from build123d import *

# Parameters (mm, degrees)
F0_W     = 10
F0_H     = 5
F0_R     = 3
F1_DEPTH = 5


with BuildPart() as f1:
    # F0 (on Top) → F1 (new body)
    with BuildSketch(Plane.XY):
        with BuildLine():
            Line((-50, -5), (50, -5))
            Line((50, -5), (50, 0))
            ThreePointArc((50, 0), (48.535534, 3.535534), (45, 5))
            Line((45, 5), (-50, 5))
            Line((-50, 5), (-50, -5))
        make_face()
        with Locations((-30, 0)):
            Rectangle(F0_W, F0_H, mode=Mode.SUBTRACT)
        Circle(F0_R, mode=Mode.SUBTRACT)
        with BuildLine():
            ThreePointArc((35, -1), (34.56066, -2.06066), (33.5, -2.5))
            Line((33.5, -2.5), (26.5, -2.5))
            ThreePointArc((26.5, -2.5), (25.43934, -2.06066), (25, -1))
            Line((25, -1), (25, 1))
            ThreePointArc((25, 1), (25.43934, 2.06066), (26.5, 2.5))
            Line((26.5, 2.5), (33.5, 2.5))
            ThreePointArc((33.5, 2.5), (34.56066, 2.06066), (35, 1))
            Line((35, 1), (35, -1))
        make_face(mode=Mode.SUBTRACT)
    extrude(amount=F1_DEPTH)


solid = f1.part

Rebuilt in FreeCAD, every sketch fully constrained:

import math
import FreeCAD as App
import Part
import Sketcher
Q = App.Units.Quantity

doc = App.newDocument("Part")
params = doc.addObject("Spreadsheet::Sheet", "Params")
for row, (alias, value) in enumerate([
    ("sketch1_diameter", "6 mm"),
    ("sketch1_radius", "5 mm"),
    ("sketch1_radius2", "1.500001 mm"),
    ("sketch1_width", "100 mm"),
    ("sketch1_width2", "7 mm"),
    ("pad1_length", "5 mm"),
], start=1):
    params.set(f"A{row}", alias)
    params.set(f"B{row}", "=" + value)
    params.setAlias(f"B{row}", alias)

body = doc.addObject("PartDesign::Body", "Body")

sketch1 = body.newObject("Sketcher::SketchObject", "Sketch")
sketch1.AttachmentSupport = (doc.getObject("XY_Plane"), [""])
sketch1.MapMode = "FlatFace"
sketch1.addGeometry(Part.LineSegment(App.Vector(-50, -5, 0), App.Vector(50, -5, 0)), False)
sketch1.addGeometry(Part.LineSegment(App.Vector(50, -5, 0), App.Vector(50, 0, 0)), False)
sketch1.addGeometry(Part.ArcOfCircle(Part.Circle(App.Vector(45, 0, 0), App.Vector(0, 0, 1), 5), math.radians(0), math.radians(90)), False)
sketch1.addGeometry(Part.LineSegment(App.Vector(45, 5, 0), App.Vector(-50, 5, 0)), False)
sketch1.addGeometry(Part.LineSegment(App.Vector(-50, 5, 0), App.Vector(-50, -5, 0)), False)
sketch1.addGeometry(Part.LineSegment(App.Vector(-25, -2.5, 0), App.Vector(-35, -2.5, 0)), False)
sketch1.addGeometry(Part.LineSegment(App.Vector(-35, -2.5, 0), App.Vector(-35, 2.5, 0)), False)
sketch1.addGeometry(Part.LineSegment(App.Vector(-35, 2.5, 0), App.Vector(-25, 2.5, 0)), False)
sketch1.addGeometry(Part.LineSegment(App.Vector(-25, 2.5, 0), App.Vector(-25, -2.5, 0)), False)
sketch1.addGeometry(Part.Circle(App.Vector(0, 0, 0), App.Vector(0, 0, 1), 3), False)
sketch1.addGeometry(Part.LineSegment(App.Vector(35, 1, 0), App.Vector(35, -1, 0)), False)
sketch1.addGeometry(Part.ArcOfCircle(Part.Circle(App.Vector(33.5, -1, 0), App.Vector(0, 0, 1), 1.5), math.radians(-90), math.radians(0)), False)
sketch1.addGeometry(Part.LineSegment(App.Vector(33.5, -2.5, 0), App.Vector(26.5, -2.5, 0)), False)
sketch1.addGeometry(Part.ArcOfCircle(Part.Circle(App.Vector(26.5, -1, 0), App.Vector(0, 0, 1), 1.5), math.radians(-180), math.radians(-90)), False)
sketch1.addGeometry(Part.LineSegment(App.Vector(25, -1, 0), App.Vector(25, 1, 0)), False)
sketch1.addGeometry(Part.ArcOfCircle(Part.Circle(App.Vector(26.5, 1, 0), App.Vector(0, 0, 1), 1.5), math.radians(90), math.radians(180)), False)
sketch1.addGeometry(Part.LineSegment(App.Vector(26.5, 2.5, 0), App.Vector(33.5, 2.5, 0)), False)
sketch1.addGeometry(Part.ArcOfCircle(Part.Circle(App.Vector(33.5, 1, 0), App.Vector(0, 0, 1), 1.5), math.radians(0), math.radians(90)), False)
sketch1.addConstraint(Sketcher.Constraint("Coincident", 0, 2, 1, 1))
sketch1.addConstraint(Sketcher.Constraint("Tangent", 1, 2, 2, 1))
sketch1.addConstraint(Sketcher.Constraint("Tangent", 2, 2, 3, 1))
sketch1.addConstraint(Sketcher.Constraint("Coincident", 3, 2, 4, 1))
sketch1.addConstraint(Sketcher.Constraint("Coincident", 4, 2, 0, 1))
sketch1.addConstraint(Sketcher.Constraint("Coincident", 5, 2, 6, 1))
sketch1.addConstraint(Sketcher.Constraint("Coincident", 6, 2, 7, 1))
sketch1.addConstraint(Sketcher.Constraint("Coincident", 7, 2, 8, 1))
sketch1.addConstraint(Sketcher.Constraint("Coincident", 8, 2, 5, 1))
sketch1.addConstraint(Sketcher.Constraint("Tangent", 10, 2, 11, 2))
sketch1.addConstraint(Sketcher.Constraint("Tangent", 11, 1, 12, 1))
sketch1.addConstraint(Sketcher.Constraint("Tangent", 12, 2, 13, 2))
sketch1.addConstraint(Sketcher.Constraint("Tangent", 13, 1, 14, 1))
sketch1.addConstraint(Sketcher.Constraint("Tangent", 14, 2, 15, 2))
sketch1.addConstraint(Sketcher.Constraint("Tangent", 15, 1, 16, 1))
sketch1.addConstraint(Sketcher.Constraint("Tangent", 16, 2, 17, 2))
sketch1.addConstraint(Sketcher.Constraint("Tangent", 17, 1, 10, 1))
sketch1.addConstraint(Sketcher.Constraint("Horizontal", 0))
sketch1.addConstraint(Sketcher.Constraint("Vertical", 1))
sketch1.addConstraint(Sketcher.Constraint("Horizontal", 3))
sketch1.addConstraint(Sketcher.Constraint("Vertical", 4))
sketch1.addConstraint(Sketcher.Constraint("Horizontal", 5))
sketch1.addConstraint(Sketcher.Constraint("Vertical", 6))
sketch1.addConstraint(Sketcher.Constraint("Horizontal", 7))
sketch1.addConstraint(Sketcher.Constraint("Vertical", 8))
sketch1.addConstraint(Sketcher.Constraint("Vertical", 10))
sketch1.addConstraint(Sketcher.Constraint("Horizontal", 12))
sketch1.addConstraint(Sketcher.Constraint("Vertical", 14))
sketch1.addConstraint(Sketcher.Constraint("Horizontal", 16))
sketch1.addConstraint(Sketcher.Constraint("Coincident", 9, 3, -1, 1))
sketch1.addConstraint(Sketcher.Constraint("Equal", 11, 13))
sketch1.addConstraint(Sketcher.Constraint("Equal", 13, 15))
sketch1.addConstraint(Sketcher.Constraint("Equal", 15, 17))
sketch1.addConstraint(Sketcher.Constraint("Symmetric", 0, 2, 3, 2, -1, 1))
sketch1.addConstraint(Sketcher.Constraint("PointOnObject", 2, 3, -1))
sketch1.addConstraint(Sketcher.Constraint("Horizontal", 8, 2, 11, 1))
sketch1.addConstraint(Sketcher.Constraint("Horizontal", 7, 2, 15, 1))
sketch1.addConstraint(Sketcher.Constraint("Equal", 7, 4))
sketch1.addConstraint(Sketcher.Constraint("Equal", 1, 6))
sketch1.addConstraint(Sketcher.Constraint("Diameter", 9, Q("6 mm")))
sketch1.addConstraint(Sketcher.Constraint("Radius", 2, Q("5 mm")))
sketch1.addConstraint(Sketcher.Constraint("Radius", 11, Q("1.500001 mm")))
sketch1.addConstraint(Sketcher.Constraint("DistanceX", 0, 1, 0, 2, Q("100 mm")))
sketch1.addConstraint(Sketcher.Constraint("DistanceX", 12, 2, 12, 1, Q("7 mm")))
sketch1.addConstraint(Sketcher.Constraint("DistanceY", 11, 3, -1, 1, Q("0.999999 mm")))
sketch1.addConstraint(Sketcher.Constraint("DistanceX", 5, 2, -1, 1, Q("35 mm")))
sketch1.addConstraint(Sketcher.Constraint("DistanceX", -1, 1, 10, 2, Q("35 mm")))
sketch1.setExpression("Constraints[39]", "Params.sketch1_diameter")
sketch1.setExpression("Constraints[40]", "Params.sketch1_radius")
sketch1.setExpression("Constraints[41]", "Params.sketch1_radius2")
sketch1.setExpression("Constraints[42]", "Params.sketch1_width")
sketch1.setExpression("Constraints[43]", "Params.sketch1_width2")
pad1 = body.newObject("PartDesign::Pad", "Pad")
pad1.Profile = sketch1
pad1.setExpression("Length", "Params.pad1_length")

doc.recompute()
